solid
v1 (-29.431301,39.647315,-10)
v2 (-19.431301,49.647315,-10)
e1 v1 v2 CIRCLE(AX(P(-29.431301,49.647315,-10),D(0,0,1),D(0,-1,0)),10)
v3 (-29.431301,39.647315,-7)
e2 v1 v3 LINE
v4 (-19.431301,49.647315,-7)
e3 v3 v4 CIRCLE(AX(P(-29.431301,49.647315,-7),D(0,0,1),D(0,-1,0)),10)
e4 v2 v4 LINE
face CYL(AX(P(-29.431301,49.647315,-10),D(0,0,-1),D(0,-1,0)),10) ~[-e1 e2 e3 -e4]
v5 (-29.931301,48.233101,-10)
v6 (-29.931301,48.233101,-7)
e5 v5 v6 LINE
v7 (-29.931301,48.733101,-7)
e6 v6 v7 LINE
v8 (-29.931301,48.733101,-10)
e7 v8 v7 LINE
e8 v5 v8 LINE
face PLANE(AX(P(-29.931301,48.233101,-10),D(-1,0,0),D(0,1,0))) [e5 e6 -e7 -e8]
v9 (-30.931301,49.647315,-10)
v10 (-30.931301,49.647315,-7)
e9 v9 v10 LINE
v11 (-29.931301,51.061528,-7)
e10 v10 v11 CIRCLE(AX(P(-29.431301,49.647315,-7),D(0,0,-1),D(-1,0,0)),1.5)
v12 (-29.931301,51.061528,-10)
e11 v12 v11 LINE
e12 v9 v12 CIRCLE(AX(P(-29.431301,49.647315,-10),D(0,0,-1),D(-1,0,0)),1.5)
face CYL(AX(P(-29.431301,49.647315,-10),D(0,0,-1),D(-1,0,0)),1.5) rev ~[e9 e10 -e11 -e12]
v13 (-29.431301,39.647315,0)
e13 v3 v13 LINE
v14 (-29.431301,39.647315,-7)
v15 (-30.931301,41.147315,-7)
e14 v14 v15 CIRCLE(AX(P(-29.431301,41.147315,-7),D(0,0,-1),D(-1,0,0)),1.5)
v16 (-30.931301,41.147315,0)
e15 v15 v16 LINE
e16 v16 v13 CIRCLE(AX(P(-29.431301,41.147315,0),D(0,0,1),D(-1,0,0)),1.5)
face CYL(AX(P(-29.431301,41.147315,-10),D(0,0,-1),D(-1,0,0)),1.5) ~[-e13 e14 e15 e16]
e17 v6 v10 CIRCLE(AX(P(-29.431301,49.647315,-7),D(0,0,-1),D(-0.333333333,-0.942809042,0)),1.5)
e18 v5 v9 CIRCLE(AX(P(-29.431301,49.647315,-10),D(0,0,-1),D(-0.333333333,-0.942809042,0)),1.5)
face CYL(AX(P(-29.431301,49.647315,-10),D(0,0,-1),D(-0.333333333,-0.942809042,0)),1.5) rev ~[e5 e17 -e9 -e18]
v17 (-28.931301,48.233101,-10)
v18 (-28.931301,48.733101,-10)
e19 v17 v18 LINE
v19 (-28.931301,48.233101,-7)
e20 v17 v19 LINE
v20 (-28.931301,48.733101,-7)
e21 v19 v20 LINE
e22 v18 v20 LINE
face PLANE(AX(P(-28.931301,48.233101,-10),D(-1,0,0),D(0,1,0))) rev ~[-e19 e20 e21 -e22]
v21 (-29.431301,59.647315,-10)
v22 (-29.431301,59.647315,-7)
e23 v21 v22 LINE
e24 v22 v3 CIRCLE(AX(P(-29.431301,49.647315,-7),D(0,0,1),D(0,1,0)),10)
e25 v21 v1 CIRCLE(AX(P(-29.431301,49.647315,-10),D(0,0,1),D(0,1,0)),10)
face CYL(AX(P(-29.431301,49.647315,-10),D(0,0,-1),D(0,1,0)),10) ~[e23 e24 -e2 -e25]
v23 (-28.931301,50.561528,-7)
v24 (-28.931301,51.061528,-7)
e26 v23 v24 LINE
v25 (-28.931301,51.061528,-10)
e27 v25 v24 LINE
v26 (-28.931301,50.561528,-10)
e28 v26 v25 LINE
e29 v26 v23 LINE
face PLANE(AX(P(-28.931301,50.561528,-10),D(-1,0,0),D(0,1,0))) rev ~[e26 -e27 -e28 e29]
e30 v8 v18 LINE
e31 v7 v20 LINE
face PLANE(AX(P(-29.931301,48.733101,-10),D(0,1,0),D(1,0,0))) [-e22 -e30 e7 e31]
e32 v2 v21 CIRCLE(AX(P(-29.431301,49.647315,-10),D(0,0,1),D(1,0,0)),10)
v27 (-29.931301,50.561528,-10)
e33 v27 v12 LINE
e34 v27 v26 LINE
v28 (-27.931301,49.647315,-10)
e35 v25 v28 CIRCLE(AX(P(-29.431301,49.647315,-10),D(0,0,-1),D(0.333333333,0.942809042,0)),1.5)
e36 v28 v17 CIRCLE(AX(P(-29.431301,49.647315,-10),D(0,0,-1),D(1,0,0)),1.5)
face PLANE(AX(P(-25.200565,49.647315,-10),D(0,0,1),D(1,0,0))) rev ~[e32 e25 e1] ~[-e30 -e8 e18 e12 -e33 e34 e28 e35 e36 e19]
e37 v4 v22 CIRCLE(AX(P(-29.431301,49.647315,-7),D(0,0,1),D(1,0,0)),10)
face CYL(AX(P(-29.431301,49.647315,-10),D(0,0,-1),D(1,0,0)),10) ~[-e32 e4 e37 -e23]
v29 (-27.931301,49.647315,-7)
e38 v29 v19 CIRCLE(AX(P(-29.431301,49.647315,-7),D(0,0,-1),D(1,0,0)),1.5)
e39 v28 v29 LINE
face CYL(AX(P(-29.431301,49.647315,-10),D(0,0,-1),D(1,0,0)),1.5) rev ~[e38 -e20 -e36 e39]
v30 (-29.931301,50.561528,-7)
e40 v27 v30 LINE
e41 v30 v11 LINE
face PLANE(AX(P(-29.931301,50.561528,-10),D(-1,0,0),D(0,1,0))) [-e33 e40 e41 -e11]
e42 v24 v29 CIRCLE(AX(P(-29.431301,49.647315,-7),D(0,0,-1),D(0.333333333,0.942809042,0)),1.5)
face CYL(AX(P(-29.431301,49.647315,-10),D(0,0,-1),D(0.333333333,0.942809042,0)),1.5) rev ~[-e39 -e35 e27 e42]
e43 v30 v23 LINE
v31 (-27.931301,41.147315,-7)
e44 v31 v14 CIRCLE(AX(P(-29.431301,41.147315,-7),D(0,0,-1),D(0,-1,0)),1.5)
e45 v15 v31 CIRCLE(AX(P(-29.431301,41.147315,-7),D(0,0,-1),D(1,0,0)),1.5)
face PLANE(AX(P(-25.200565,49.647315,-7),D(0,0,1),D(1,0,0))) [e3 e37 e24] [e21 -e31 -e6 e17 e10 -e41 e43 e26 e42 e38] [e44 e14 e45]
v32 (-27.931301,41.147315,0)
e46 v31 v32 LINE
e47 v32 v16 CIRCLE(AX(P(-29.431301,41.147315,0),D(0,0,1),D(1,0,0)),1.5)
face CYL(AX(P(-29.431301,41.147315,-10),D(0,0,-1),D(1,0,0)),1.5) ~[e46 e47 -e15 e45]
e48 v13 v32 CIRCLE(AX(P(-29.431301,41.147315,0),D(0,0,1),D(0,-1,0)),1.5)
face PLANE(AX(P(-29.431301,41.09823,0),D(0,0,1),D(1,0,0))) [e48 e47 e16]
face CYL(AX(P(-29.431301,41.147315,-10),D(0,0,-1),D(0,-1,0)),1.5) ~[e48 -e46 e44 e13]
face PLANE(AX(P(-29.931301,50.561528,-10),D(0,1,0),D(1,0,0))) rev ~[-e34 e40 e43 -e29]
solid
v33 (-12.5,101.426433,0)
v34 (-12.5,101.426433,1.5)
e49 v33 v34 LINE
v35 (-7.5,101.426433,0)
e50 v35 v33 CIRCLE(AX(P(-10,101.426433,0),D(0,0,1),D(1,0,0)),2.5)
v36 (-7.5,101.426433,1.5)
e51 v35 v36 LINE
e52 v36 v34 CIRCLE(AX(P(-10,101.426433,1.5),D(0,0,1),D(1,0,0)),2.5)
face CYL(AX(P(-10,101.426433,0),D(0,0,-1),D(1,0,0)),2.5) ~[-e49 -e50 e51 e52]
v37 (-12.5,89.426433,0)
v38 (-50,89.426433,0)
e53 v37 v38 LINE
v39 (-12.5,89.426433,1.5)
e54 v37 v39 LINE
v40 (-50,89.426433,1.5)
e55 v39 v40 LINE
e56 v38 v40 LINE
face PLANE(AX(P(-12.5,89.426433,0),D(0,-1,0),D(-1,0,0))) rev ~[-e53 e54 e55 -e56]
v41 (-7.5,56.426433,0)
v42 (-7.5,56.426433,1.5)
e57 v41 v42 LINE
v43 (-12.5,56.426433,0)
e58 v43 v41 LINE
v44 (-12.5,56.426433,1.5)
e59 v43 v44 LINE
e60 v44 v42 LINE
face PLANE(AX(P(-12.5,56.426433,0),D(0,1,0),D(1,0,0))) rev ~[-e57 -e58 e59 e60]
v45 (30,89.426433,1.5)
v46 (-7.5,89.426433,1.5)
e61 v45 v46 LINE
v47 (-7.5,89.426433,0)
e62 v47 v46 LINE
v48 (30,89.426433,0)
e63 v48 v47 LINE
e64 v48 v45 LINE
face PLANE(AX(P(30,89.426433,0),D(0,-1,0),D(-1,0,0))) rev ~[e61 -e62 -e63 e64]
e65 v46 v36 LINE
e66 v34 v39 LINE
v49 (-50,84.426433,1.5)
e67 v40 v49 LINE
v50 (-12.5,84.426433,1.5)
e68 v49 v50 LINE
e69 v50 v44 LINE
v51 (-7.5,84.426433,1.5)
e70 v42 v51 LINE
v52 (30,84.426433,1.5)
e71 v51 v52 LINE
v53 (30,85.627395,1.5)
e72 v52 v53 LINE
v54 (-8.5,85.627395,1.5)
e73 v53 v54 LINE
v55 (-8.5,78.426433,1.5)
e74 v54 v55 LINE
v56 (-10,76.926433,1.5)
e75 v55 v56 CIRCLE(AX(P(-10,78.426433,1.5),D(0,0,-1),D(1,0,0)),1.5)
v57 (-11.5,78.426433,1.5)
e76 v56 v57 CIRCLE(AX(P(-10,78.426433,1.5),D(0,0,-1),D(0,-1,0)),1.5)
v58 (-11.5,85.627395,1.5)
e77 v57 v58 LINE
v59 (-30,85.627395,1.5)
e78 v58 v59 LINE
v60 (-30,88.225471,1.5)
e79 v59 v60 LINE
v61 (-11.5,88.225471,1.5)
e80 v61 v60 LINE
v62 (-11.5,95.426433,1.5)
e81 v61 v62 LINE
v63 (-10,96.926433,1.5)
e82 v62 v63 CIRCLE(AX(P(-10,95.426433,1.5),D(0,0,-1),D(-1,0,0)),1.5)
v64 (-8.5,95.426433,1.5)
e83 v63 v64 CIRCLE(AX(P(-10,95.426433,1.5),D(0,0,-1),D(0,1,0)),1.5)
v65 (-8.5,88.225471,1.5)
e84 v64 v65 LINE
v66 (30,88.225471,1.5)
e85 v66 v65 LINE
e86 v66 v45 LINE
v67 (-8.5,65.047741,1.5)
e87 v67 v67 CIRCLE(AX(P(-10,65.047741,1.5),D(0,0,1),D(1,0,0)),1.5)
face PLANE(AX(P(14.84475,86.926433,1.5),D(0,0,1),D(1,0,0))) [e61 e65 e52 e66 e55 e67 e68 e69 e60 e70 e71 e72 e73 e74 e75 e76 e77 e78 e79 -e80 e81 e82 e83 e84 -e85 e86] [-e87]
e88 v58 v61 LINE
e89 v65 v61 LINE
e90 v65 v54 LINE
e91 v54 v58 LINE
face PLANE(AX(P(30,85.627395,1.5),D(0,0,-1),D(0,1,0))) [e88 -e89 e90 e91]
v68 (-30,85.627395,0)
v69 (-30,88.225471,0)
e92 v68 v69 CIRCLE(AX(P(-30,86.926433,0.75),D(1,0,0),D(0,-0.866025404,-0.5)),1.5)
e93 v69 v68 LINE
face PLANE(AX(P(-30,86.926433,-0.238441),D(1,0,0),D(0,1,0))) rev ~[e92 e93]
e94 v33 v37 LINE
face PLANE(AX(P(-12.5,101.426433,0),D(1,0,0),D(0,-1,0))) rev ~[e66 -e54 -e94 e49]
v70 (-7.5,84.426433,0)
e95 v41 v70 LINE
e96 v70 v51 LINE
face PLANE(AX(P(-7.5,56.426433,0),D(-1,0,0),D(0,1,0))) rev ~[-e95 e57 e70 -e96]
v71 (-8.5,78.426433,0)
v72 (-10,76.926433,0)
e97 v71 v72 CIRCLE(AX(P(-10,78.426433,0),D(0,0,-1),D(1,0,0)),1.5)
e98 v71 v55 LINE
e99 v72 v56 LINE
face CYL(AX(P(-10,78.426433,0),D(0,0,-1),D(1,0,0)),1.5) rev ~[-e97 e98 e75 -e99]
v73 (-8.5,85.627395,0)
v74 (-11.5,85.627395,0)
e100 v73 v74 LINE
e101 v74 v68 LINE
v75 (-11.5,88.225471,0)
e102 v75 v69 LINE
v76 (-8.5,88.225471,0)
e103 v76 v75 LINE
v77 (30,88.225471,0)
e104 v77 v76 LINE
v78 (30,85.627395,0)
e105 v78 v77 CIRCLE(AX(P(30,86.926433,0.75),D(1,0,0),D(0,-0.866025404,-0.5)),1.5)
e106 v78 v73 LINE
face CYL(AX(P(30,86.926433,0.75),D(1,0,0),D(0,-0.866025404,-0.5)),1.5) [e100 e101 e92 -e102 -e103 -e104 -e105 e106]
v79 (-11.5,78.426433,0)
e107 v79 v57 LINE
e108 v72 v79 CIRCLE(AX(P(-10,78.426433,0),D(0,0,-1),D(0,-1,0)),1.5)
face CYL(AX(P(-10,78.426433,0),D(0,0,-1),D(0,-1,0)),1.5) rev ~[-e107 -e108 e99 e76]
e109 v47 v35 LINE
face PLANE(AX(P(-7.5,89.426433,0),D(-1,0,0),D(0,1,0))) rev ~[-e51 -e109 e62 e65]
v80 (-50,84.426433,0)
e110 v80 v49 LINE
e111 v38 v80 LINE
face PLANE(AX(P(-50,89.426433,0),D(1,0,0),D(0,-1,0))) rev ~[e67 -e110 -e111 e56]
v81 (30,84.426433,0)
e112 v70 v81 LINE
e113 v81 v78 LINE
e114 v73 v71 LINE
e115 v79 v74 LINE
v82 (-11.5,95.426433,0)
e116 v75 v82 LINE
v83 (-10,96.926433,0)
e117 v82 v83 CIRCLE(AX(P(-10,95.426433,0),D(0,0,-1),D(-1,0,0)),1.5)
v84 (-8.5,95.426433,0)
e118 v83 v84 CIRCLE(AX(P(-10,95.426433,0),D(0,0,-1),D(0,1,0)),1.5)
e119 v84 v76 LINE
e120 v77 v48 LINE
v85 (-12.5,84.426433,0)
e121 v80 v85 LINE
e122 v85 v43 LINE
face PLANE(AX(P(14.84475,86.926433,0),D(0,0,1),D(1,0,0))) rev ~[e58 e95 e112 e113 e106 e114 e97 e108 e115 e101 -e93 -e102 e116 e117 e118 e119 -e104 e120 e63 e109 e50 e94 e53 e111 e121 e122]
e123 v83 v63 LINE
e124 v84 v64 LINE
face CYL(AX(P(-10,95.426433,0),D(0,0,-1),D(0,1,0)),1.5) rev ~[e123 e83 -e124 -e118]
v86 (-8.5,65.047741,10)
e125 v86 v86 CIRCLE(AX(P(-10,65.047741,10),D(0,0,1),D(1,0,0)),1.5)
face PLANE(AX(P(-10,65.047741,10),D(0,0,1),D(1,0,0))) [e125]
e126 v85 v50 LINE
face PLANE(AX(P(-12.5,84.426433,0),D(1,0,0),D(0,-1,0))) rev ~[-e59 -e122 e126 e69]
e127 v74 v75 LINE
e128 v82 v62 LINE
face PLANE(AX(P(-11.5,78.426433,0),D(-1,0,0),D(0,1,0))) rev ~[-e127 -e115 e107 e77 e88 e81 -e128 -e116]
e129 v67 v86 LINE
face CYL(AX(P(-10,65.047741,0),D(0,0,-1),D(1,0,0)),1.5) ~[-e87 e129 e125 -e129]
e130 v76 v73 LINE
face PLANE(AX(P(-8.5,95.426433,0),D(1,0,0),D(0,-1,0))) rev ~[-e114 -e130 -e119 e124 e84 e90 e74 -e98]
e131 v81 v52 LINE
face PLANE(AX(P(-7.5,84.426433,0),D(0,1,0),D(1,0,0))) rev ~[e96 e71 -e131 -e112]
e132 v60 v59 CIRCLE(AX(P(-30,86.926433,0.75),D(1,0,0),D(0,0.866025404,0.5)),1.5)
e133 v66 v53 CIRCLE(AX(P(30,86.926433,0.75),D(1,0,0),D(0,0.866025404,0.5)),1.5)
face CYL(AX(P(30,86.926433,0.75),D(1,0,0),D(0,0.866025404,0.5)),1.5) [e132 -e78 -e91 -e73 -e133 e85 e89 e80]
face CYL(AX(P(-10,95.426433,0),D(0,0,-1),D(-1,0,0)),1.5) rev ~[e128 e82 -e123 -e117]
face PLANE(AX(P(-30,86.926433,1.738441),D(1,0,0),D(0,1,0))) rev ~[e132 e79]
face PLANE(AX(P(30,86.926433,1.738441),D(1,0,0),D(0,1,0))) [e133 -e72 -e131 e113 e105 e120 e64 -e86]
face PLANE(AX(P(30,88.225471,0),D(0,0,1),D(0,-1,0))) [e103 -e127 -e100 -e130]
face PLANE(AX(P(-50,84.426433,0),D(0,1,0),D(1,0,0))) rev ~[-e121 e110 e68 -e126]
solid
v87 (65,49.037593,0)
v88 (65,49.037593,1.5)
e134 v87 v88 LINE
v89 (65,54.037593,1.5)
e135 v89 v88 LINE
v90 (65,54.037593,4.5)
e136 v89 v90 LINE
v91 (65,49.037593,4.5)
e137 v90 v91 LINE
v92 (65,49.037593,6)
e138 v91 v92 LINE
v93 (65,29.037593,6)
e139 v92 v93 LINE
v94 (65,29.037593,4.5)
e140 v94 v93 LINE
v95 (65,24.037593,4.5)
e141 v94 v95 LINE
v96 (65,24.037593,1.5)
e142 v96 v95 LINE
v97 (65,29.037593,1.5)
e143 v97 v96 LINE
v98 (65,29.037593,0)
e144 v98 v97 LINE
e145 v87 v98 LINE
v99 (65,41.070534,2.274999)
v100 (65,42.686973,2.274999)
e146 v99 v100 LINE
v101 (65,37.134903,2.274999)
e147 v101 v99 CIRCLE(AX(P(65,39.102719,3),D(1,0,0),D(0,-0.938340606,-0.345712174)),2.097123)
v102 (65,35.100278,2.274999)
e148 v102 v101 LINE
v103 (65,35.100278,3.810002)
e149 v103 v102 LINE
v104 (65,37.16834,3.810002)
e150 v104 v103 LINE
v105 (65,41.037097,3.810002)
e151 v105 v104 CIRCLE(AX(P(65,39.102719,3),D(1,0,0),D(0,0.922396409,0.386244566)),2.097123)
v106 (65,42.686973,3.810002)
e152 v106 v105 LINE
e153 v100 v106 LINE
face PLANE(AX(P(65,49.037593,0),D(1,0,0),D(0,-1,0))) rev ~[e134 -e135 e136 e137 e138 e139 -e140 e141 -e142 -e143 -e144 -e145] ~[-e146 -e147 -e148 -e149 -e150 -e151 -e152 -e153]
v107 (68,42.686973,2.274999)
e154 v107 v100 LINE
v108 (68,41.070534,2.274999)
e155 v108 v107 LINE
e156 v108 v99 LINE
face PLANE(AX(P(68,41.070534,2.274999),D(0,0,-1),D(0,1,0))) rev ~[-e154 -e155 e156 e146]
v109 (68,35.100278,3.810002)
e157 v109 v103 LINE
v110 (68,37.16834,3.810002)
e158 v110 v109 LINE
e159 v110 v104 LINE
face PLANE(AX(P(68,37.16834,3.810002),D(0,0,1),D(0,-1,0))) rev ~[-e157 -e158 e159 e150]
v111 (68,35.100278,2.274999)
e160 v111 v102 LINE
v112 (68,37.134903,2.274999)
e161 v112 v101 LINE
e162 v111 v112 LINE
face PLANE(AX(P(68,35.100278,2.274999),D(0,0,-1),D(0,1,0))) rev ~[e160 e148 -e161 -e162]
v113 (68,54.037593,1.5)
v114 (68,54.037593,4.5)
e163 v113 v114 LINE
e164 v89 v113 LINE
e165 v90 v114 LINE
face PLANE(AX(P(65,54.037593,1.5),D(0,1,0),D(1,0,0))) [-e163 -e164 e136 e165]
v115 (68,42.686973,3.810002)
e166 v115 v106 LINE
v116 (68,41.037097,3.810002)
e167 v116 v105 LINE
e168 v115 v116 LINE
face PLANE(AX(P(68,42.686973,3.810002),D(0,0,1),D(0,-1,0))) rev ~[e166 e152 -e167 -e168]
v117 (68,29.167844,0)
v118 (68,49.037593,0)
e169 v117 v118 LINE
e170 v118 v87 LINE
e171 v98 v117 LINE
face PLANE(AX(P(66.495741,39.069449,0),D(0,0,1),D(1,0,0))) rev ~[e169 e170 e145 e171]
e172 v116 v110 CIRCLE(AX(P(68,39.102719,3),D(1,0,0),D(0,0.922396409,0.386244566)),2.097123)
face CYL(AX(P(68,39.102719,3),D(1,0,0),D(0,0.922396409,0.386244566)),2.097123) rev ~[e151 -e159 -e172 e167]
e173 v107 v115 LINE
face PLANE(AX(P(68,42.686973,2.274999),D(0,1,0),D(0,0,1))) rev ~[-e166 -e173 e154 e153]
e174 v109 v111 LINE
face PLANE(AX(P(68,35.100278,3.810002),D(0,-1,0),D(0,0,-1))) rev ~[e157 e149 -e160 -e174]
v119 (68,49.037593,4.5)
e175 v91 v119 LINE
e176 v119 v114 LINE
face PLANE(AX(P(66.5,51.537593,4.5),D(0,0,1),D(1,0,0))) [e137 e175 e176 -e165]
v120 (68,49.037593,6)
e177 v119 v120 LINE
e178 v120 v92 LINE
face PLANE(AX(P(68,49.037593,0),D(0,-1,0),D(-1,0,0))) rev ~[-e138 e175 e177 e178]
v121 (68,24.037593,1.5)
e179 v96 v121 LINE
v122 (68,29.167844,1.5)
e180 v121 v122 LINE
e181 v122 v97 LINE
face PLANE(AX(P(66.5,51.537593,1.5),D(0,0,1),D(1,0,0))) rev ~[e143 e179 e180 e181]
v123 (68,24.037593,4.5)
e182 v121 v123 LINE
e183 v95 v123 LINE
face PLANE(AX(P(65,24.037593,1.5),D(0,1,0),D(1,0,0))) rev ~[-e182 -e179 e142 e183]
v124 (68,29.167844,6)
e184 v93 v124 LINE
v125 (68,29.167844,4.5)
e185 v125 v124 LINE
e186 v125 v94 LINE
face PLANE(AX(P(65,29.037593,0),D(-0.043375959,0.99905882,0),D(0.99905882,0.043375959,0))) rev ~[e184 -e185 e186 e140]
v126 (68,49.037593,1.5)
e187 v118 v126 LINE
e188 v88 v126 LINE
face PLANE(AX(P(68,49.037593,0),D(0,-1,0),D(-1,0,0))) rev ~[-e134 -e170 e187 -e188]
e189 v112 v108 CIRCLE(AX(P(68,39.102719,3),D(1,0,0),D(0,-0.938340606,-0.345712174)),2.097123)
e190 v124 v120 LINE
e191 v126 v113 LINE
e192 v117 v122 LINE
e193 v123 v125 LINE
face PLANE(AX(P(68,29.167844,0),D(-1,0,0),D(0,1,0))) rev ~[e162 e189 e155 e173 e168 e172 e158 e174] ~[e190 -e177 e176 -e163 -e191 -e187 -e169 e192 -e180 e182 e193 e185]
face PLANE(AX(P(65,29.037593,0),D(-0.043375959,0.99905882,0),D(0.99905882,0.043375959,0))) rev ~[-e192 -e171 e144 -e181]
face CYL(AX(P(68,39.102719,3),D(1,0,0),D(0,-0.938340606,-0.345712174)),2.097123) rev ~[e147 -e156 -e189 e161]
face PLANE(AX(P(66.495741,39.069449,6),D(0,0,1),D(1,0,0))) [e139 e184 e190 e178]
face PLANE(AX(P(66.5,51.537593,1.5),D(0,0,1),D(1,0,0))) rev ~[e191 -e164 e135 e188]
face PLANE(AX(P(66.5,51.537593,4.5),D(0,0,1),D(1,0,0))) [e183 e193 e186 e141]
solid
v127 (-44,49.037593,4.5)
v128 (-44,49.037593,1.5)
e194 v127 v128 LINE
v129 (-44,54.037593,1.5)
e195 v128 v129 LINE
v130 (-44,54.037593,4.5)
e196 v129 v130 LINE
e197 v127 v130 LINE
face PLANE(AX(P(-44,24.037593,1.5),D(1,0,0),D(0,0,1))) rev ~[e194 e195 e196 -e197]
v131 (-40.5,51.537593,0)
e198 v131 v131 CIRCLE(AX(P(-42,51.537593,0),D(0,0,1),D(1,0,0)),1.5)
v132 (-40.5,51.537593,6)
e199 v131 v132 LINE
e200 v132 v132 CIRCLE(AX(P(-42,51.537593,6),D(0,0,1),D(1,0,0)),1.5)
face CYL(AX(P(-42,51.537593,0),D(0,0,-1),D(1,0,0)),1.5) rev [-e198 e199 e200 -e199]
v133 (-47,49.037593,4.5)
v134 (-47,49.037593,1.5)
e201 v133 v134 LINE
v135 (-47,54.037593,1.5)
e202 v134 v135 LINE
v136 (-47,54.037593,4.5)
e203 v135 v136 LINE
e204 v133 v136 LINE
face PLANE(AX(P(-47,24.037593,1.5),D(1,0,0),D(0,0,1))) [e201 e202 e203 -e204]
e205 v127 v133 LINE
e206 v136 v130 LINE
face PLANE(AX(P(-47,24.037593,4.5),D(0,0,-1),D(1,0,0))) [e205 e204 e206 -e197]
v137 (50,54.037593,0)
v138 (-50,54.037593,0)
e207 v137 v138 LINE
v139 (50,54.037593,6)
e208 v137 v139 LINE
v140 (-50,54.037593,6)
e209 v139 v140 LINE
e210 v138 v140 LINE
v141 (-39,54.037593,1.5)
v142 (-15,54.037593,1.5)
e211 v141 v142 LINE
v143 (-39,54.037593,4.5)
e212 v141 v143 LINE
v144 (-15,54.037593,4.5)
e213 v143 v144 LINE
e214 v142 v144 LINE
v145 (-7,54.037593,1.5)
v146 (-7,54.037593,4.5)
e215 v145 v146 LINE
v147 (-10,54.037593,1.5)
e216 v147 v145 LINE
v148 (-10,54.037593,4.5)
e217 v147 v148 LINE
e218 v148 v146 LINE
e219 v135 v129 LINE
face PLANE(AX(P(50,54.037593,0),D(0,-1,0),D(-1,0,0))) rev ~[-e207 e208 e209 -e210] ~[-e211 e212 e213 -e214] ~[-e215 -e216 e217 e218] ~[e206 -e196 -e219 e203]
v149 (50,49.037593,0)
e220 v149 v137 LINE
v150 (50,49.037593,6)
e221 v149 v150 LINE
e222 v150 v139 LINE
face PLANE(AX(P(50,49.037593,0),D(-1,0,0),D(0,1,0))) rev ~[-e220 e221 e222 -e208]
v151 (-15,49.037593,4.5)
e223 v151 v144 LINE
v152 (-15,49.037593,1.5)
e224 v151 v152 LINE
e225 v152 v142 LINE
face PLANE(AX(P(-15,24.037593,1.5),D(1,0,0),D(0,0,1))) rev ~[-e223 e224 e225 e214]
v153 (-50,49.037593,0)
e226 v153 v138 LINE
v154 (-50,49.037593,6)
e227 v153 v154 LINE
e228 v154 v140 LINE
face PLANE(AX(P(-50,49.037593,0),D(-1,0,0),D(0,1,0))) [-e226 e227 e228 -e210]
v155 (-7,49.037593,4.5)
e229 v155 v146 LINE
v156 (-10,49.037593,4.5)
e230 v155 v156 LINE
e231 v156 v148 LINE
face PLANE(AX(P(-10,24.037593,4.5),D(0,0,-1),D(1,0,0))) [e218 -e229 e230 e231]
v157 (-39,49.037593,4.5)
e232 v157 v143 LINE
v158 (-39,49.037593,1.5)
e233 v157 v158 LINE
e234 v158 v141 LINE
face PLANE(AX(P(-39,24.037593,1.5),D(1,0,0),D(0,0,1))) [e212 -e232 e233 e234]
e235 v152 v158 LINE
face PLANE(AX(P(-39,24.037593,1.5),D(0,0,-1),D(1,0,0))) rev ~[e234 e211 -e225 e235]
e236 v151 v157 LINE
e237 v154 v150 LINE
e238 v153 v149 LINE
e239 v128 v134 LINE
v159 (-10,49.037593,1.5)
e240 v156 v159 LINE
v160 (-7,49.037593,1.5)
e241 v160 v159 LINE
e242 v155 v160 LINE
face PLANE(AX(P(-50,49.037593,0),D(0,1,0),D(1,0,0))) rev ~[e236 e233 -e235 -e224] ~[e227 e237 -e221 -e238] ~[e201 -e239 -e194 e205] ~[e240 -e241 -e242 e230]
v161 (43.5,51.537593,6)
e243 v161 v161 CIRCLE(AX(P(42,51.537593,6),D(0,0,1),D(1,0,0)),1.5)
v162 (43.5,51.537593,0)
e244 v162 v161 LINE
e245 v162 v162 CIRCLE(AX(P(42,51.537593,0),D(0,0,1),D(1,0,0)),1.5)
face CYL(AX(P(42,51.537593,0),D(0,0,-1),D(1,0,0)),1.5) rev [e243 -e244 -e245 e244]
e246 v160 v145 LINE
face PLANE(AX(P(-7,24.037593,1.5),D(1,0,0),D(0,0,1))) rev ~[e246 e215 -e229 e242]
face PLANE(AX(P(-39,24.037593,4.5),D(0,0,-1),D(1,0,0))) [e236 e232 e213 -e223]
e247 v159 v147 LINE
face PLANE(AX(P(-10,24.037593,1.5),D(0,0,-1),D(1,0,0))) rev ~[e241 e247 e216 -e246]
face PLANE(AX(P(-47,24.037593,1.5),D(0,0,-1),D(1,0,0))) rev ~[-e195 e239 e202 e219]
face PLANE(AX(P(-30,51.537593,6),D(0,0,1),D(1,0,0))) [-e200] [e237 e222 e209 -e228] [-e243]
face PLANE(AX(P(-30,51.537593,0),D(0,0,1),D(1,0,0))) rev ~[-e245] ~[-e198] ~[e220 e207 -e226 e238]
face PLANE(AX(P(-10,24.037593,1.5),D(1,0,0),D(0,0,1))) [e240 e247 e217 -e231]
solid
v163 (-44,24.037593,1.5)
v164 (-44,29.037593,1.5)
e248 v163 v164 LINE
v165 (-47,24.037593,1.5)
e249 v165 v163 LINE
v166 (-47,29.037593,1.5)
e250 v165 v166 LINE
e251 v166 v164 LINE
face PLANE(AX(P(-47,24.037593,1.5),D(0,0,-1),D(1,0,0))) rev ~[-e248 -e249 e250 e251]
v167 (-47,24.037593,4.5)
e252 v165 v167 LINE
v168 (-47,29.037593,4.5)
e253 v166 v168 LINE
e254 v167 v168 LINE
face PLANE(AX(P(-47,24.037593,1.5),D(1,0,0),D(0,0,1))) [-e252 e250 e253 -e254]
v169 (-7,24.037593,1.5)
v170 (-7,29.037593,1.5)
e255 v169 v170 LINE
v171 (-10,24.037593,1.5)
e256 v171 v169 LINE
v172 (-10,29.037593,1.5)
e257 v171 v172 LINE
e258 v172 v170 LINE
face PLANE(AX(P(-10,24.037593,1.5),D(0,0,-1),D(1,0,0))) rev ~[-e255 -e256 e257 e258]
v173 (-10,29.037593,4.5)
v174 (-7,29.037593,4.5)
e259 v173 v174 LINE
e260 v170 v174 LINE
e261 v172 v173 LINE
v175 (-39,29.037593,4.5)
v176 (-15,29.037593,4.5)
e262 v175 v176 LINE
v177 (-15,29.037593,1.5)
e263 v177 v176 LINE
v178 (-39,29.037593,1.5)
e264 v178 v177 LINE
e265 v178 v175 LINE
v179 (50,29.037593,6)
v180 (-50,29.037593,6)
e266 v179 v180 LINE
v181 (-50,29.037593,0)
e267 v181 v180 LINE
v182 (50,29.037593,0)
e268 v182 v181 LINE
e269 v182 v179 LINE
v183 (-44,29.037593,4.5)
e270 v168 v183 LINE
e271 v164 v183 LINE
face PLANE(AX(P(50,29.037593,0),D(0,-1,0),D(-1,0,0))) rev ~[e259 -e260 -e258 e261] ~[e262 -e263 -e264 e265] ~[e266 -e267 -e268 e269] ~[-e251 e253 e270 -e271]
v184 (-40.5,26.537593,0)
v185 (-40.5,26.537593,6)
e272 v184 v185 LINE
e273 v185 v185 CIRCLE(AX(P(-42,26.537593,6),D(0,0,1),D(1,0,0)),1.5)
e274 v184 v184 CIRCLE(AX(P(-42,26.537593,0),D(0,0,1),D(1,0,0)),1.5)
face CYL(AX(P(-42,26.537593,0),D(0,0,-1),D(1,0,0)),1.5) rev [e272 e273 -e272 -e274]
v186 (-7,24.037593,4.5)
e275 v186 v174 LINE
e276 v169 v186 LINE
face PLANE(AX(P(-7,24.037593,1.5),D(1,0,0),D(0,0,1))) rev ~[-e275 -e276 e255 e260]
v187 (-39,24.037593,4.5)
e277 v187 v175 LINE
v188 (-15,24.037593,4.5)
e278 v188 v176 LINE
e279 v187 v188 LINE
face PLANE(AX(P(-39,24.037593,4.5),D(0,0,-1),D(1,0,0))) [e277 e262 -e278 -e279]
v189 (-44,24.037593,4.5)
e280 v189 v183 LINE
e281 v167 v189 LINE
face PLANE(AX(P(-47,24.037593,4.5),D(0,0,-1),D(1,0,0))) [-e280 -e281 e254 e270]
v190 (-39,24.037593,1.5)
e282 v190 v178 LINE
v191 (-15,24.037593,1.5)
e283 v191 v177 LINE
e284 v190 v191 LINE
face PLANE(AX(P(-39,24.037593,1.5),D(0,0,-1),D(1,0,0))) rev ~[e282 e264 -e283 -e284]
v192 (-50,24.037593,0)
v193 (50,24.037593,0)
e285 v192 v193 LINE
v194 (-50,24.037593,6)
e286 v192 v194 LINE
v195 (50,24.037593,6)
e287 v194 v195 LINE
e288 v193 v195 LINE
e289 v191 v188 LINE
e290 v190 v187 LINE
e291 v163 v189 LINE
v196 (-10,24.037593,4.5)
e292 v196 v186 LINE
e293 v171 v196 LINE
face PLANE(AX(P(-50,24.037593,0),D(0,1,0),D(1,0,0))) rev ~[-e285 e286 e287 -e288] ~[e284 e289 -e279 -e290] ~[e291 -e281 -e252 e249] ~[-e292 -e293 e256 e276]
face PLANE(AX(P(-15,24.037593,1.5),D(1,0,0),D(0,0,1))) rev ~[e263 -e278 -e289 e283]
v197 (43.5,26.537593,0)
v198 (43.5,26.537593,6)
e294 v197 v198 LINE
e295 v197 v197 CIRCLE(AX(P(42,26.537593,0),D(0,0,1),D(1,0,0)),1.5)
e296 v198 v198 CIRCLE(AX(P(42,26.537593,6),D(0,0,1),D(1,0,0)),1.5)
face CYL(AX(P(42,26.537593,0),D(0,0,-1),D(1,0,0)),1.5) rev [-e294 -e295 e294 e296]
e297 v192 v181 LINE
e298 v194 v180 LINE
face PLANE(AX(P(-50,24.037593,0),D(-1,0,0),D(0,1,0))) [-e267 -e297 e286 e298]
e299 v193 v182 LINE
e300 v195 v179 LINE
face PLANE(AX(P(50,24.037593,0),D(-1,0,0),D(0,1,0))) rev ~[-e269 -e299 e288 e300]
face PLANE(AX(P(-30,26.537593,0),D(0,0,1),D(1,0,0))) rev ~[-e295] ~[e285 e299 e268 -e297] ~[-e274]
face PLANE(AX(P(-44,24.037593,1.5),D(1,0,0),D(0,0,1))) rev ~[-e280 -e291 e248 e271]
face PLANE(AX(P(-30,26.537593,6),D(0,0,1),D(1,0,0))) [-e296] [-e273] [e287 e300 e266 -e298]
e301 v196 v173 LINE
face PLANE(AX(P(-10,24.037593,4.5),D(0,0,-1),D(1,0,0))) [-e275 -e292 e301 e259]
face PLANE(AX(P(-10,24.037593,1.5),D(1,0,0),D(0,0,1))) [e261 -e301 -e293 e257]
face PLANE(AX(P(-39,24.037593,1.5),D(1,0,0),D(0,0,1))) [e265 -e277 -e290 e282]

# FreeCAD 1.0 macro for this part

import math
import FreeCAD as App
import Part
import Sketcher


def add_polygon(sketch, points):
    """Adds a closed chain of lines whose ends are joined by coincident constraints."""
    first, n = sketch.GeometryCount, len(points)
    for a, b in zip(points, points[1:] + points[:1]):
        sketch.addGeometry(Part.LineSegment(App.Vector(*a, 0), App.Vector(*b, 0)), False)
    for i in range(n):
        sketch.addConstraint(Sketcher.Constraint("Coincident", first + i, 2, first + (i + 1) % n, 1))

doc = App.newDocument("Part")
params = doc.addObject("Spreadsheet::Sheet", "Params")
for row, (alias, value) in enumerate([
    ("sketch1_diameter", "3 mm"),
    ("sketch1_width", "100 mm"),
    ("sketch1_height", "5 mm"),
    ("pad1_length", "6 mm"),
    ("sketch2_diameter", "3 mm"),
    ("sketch2_width", "100 mm"),
    ("sketch2_height", "5 mm"),
    ("pad2_length", "6 mm"),
    ("sketch3_width", "3 mm"),
    ("sketch3_height", "30 mm"),
    ("pad3_length", "3 mm"),
    ("sketch4_width", "3 mm"),
    ("sketch4_height", "20 mm"),
    ("pad4_length", "6 mm"),
    ("sketch6_width", "3 mm"),
    ("sketch6_width2", "24 mm"),
    ("pad5_length", "30.001 mm"),
    ("sketch7_diameter", "3 mm"),
    ("sketch7_radius", "2.5 mm"),
    ("sketch7_height", "12 mm"),
    ("sketch7_height2", "28 mm"),
    ("sketch7_height3", "17 mm"),
    ("pad6_length", "1.5 mm"),
    ("sketch8_diameter", "3 mm"),
    ("pad7_length", "10 mm"),
    ("sketch9_radius", "1.5 mm"),
    ("pad8_length", "60 mm"),
    ("sketch10_radius", "10 mm"),
    ("sketch10_radius2", "1.5 mm"),
    ("sketch10_width", "1 mm"),
    ("sketch10_height", "0.5 mm"),
    ("pad9_length", "3 mm"),
    ("sketch11_radius", "1.5 mm"),
    ("pad10_length", "10 mm"),
], start=1):
    params.set(f"A{row}", alias)
    params.set(f"B{row}", "=" + value)
    params.setAlias(f"B{row}", alias)

body = doc.addObject("PartDesign::Body", "Body")

# Sketch on XY plane
sketch1 = doc.addObject("Sketcher::SketchObject", "Sketch")
body.addObject(sketch1)
sketch1.AttachmentSupport = (doc.XY_Plane, [""])
sketch1.MapMode = "FlatFace"
add_polygon(sketch1, [(-50, 54), (-50, 49), (50, 49), (50, 54)])  # lines 0-3
sketch1.addGeometry(Part.Circle(App.Vector(-42, 51.5, 0), App.Vector(0, 0, 1), 1.5), False)  # 4
sketch1.addGeometry(Part.Circle(App.Vector(42, 51.5, 0), App.Vector(0, 0, 1), 1.5), False)  # 5
sketch1.addConstraint([
    Sketcher.Constraint("Vertical", 0),
    Sketcher.Constraint("Horizontal", 1),
    Sketcher.Constraint("Vertical", 2),
    Sketcher.Constraint("Horizontal", 3),
    Sketcher.Constraint("Equal", 4, 5),
    Sketcher.Constraint("Symmetric", 4, 3, 5, 3, -2),
    Sketcher.Constraint("Diameter", 4, 3.0),
    Sketcher.Constraint("DistanceX", 1, 1, 1, 2, 100.0),
    Sketcher.Constraint("DistanceY", 0, 2, 0, 1, 5.0),
    Sketcher.Constraint("DistanceX", 4, 3, -1, 1, 42.0),
    Sketcher.Constraint("DistanceX", 0, 2, -1, 1, 50.0),
    Sketcher.Constraint("DistanceY", 0, 2, 4, 3, 2.5),
    Sketcher.Constraint("DistanceY", -1, 1, 4, 3, 51.537593),
])
sketch1.setExpression("Constraints[10]", "Params.sketch1_diameter")
sketch1.setExpression("Constraints[11]", "Params.sketch1_width")
sketch1.setExpression("Constraints[12]", "Params.sketch1_height")
pad1 = doc.addObject("PartDesign::Pad", "Pad")
body.addObject(pad1)
pad1.Profile = sketch1
pad1.setExpression("Length", "Params.pad1_length")
body2 = doc.addObject("PartDesign::Body", "Body001")

# Sketch on XY plane
sketch2 = doc.addObject("Sketcher::SketchObject", "Sketch001")
body2.addObject(sketch2)
sketch2.AttachmentSupport = (doc.getObject("XY_Plane001"), [""])
sketch2.MapMode = "FlatFace"
add_polygon(sketch2, [(-50, 29), (-50, 24), (50, 24), (50, 29)])  # lines 0-3
sketch2.addGeometry(Part.Circle(App.Vector(-42, 26.5, 0), App.Vector(0, 0, 1), 1.5), False)  # 4
sketch2.addGeometry(Part.Circle(App.Vector(42, 26.5, 0), App.Vector(0, 0, 1), 1.5), False)  # 5
sketch2.addConstraint([
    Sketcher.Constraint("Vertical", 0),
    Sketcher.Constraint("Horizontal", 1),
    Sketcher.Constraint("Vertical", 2),
    Sketcher.Constraint("Horizontal", 3),
    Sketcher.Constraint("Equal", 4, 5),
    Sketcher.Constraint("Symmetric", 4, 3, 5, 3, -2),
    Sketcher.Constraint("Diameter", 4, 3.0),
    Sketcher.Constraint("DistanceX", 1, 1, 1, 2, 100.0),
    Sketcher.Constraint("DistanceY", 0, 2, 0, 1, 5.0),
    Sketcher.Constraint("DistanceX", 4, 3, -1, 1, 42.0),
    Sketcher.Constraint("DistanceX", 0, 2, -1, 1, 50.0),
    Sketcher.Constraint("DistanceY", 0, 2, 4, 3, 2.5),
    Sketcher.Constraint("DistanceY", -1, 1, 4, 3, 26.537593),
])
sketch2.setExpression("Constraints[10]", "Params.sketch2_diameter")
sketch2.setExpression("Constraints[11]", "Params.sketch2_width")
sketch2.setExpression("Constraints[12]", "Params.sketch2_height")
pad2 = doc.addObject("PartDesign::Pad", "Pad001")
body2.addObject(pad2)
pad2.Profile = sketch2
pad2.setExpression("Length", "Params.pad2_length")
body3 = doc.addObject("PartDesign::Body", "Body002")

# Sketch on XY plane
sketch3 = doc.addObject("Sketcher::SketchObject", "Sketch002")
body3.addObject(sketch3)
sketch3.AttachmentSupport = (doc.getObject("XY_Plane002"), [""])
sketch3.MapMode = "FlatFace"
sketch3.AttachmentOffset = App.Placement(App.Vector(0, 0, 1.5), App.Rotation())
add_polygon(sketch3, [(65, 54), (65, 24), (68, 24), (68, 54)])  # lines 0-3
sketch3.addConstraint([
    Sketcher.Constraint("Vertical", 0),
    Sketcher.Constraint("Horizontal", 1),
    Sketcher.Constraint("Vertical", 2),
    Sketcher.Constraint("Horizontal", 3),
    Sketcher.Constraint("DistanceX", 1, 1, 1, 2, 3.0),
    Sketcher.Constraint("DistanceY", 0, 2, 0, 1, 30.0),
    Sketcher.Constraint("DistanceX", -1, 1, 0, 2, 65.0),
    Sketcher.Constraint("DistanceY", -1, 1, 0, 2, 24.037593),
])
sketch3.setExpression("Constraints[8]", "Params.sketch3_width")
sketch3.setExpression("Constraints[9]", "Params.sketch3_height")
pad3 = doc.addObject("PartDesign::Pad", "Pad002")
body3.addObject(pad3)
pad3.Profile = sketch3
pad3.setExpression("Length", "Params.pad3_length")

# Sketch on XY plane
sketch4 = doc.addObject("Sketcher::SketchObject", "Sketch003")
body3.addObject(sketch4)
sketch4.AttachmentSupport = (doc.getObject("XY_Plane002"), [""])
sketch4.MapMode = "FlatFace"
add_polygon(sketch4, [(68, 49), (65, 49), (65, 29), (68, 29.2)])  # lines 0-3
sketch4.addConstraint([
    Sketcher.Constraint("Horizontal", 0),
    Sketcher.Constraint("Vertical", 1),
    Sketcher.Constraint("Vertical", 3),
    Sketcher.Constraint("DistanceX", 0, 2, 0, 1, 3.0),
    Sketcher.Constraint("DistanceY", 1, 2, 1, 1, 20.0),
    Sketcher.Constraint("DistanceX", -1, 1, 0, 2, 65.0),
    Sketcher.Constraint("DistanceY", 3, 1, 3, 2, 19.86975),
    Sketcher.Constraint("DistanceY", -1, 1, 0, 2, 49.037593),
])
sketch4.setExpression("Constraints[7]", "Params.sketch4_width")
sketch4.setExpression("Constraints[8]", "Params.sketch4_height")
pad4 = doc.addObject("PartDesign::Pad", "Pad003")
body3.addObject(pad4)
pad4.Profile = sketch4
pad4.setExpression("Length", "Params.pad4_length")

# Sketch on YZ plane
sketch5 = doc.addObject("Sketcher::SketchObject", "Sketch004")
body3.addObject(sketch5)
sketch5.AttachmentSupport = (doc.getObject("YZ_Plane002"), [""])
sketch5.MapMode = "FlatFace"
sketch5.AttachmentOffset = App.Placement(App.Vector(0, 0, 68), App.Rotation())
sketch5.addGeometry([
    Part.ArcOfCircle(Part.Circle(App.Vector(39.1, 3, 0), App.Vector(0, 0, 1), 2.1), math.radians(23), math.radians(157)),  # 0
    Part.LineSegment(App.Vector(37.2, 3.8, 0), App.Vector(35.1, 3.8, 0)),  # 1
    Part.LineSegment(App.Vector(35.1, 3.8, 0), App.Vector(35.1, 2.3, 0)),  # 2
    Part.LineSegment(App.Vector(35.1, 2.3, 0), App.Vector(37.1, 2.3, 0)),  # 3
    Part.ArcOfCircle(Part.Circle(App.Vector(39.1, 3, 0), App.Vector(0, 0, 1), 2.1), math.radians(-160), math.radians(-20)),  # 4
    Part.LineSegment(App.Vector(41.1, 2.3, 0), App.Vector(42.7, 2.3, 0)),  # 5
    Part.LineSegment(App.Vector(42.7, 2.3, 0), App.Vector(42.7, 3.8, 0)),  # 6
    Part.LineSegment(App.Vector(42.7, 3.8, 0), App.Vector(41, 3.8, 0)),  # 7
], False)
sketch5.addConstraint([
    Sketcher.Constraint("Coincident", 0, 2, 1, 1),
    Sketcher.Constraint("Coincident", 1, 2, 2, 1),
    Sketcher.Constraint("Coincident", 2, 2, 3, 1),
    Sketcher.Constraint("Coincident", 3, 2, 4, 1),
    Sketcher.Constraint("Coincident", 4, 2, 5, 1),
    Sketcher.Constraint("Coincident", 5, 2, 6, 1),
    Sketcher.Constraint("Coincident", 6, 2, 7, 1),
    Sketcher.Constraint("Coincident", 7, 2, 0, 1),
    Sketcher.Constraint("Horizontal", 1),
    Sketcher.Constraint("Vertical", 2),
    Sketcher.Constraint("Horizontal", 3),
    Sketcher.Constraint("Horizontal", 5),
    Sketcher.Constraint("Vertical", 6),
    Sketcher.Constraint("Horizontal", 7),
    Sketcher.Constraint("Coincident", 4, 3, 0, 3),
    Sketcher.Constraint("Equal", 0, 4),
    Sketcher.Constraint("Horizontal", 3, 2, 4, 2),
    Sketcher.Constraint("Horizontal", 1, 2, 6, 2),
    Sketcher.Constraint("DistanceY", -1, 1, 0, 3, 3.0),
    Sketcher.Constraint("DistanceY", -1, 1, 2, 2, 2.274999),
    Sketcher.Constraint("Radius", 0, 2.097123),
    Sketcher.Constraint("DistanceX", 5, 1, 5, 2, 1.616439),
    Sketcher.Constraint("DistanceX", 1, 2, 1, 1, 2.068063),
    Sketcher.Constraint("DistanceX", 3, 1, 3, 2, 2.034626),
    Sketcher.Constraint("DistanceX", -1, 1, 0, 3, 39.102719),
])
pocket1 = doc.addObject("PartDesign::Pocket", "Pocket")
body3.addObject(pocket1)
pocket1.Profile = sketch5
pocket1.Type = "ThroughAll"
body4 = doc.addObject("PartDesign::Body", "Body003")
body4.AllowCompound = True

# Sketch on XZ plane
sketch6 = doc.addObject("Sketcher::SketchObject", "Sketch005")
body4.addObject(sketch6)
sketch6.AttachmentSupport = (doc.getObject("XZ_Plane003"), [""])
sketch6.MapMode = "FlatFace"
sketch6.AttachmentOffset = App.Placement(App.Vector(0, 0, -24.037593), App.Rotation())
add_polygon(sketch6, [(-10, 4.5), (-10, 1.5), (-7, 1.5), (-7, 4.5)])  # lines 0-3
add_polygon(sketch6, [(-47, 4.5), (-47, 1.5), (-44, 1.5), (-44, 4.5)])  # lines 4-7
add_polygon(sketch6, [(-39, 4.5), (-39, 1.5), (-15, 1.5), (-15, 4.5)])  # lines 8-11
sketch6.addConstraint([
    Sketcher.Constraint("Vertical", 0),
    Sketcher.Constraint("Horizontal", 1),
    Sketcher.Constraint("Vertical", 2),
    Sketcher.Constraint("Horizontal", 3),
    Sketcher.Constraint("Vertical", 4),
    Sketcher.Constraint("Horizontal", 5),
    Sketcher.Constraint("Vertical", 6),
    Sketcher.Constraint("Horizontal", 7),
    Sketcher.Constraint("Vertical", 8),
    Sketcher.Constraint("Horizontal", 9),
    Sketcher.Constraint("Vertical", 10),
    Sketcher.Constraint("Horizontal", 11),
    Sketcher.Constraint("Horizontal", 1, 2, 4, 2),
    Sketcher.Constraint("Horizontal", 3, 2, 6, 2),
    Sketcher.Constraint("Horizontal", 5, 2, 8, 2),
    Sketcher.Constraint("Horizontal", 7, 2, 10, 2),
    Sketcher.Constraint("Equal", 3, 5),
    Sketcher.Constraint("Equal", 7, 0),
    Sketcher.Constraint("DistanceX", 1, 1, 1, 2, 3.0),
    Sketcher.Constraint("DistanceX", 9, 1, 9, 2, 24.0),
    Sketcher.Constraint("DistanceX", 0, 2, -1, 1, 10.0),
    Sketcher.Constraint("DistanceX", 4, 2, -1, 1, 47.0),
    Sketcher.Constraint("DistanceX", 8, 2, -1, 1, 39.0),
    Sketcher.Constraint("DistanceY", -1, 1, 0, 2, 1.5),
])
sketch6.setExpression("Constraints[30]", "Params.sketch6_width")
sketch6.setExpression("Constraints[31]", "Params.sketch6_width2")
pad5 = doc.addObject("PartDesign::Pad", "Pad004")
body4.addObject(pad5)
pad5.Profile = sketch6
pad5.setExpression("Length", "Params.pad5_length")
pad5.Reversed = True
doc.recompute()

body5 = doc.addObject("PartDesign::Body", "Body004")
body5.BaseFeature = body4
boolean = doc.addObject("PartDesign::Boolean", "Boolean")
body.addObject(boolean)
boolean.Type = "Cut"
boolean.addObjects([body5])
doc.recompute()

boolean2 = doc.addObject("PartDesign::Boolean", "Boolean001")
body2.addObject(boolean2)
boolean2.Type = "Cut"
boolean2.addObjects([body4])
body6 = doc.addObject("PartDesign::Body", "Body005")

# Sketch on XY plane
sketch7 = doc.addObject("Sketcher::SketchObject", "Sketch006")
body6.addObject(sketch7)
sketch7.AttachmentSupport = (doc.getObject("XY_Plane005"), [""])
sketch7.MapMode = "FlatFace"
sketch7.addGeometry([
    Part.LineSegment(App.Vector(30, 89.4, 0), App.Vector(-7.5, 89.4, 0)),  # 0
    Part.LineSegment(App.Vector(-7.5, 89.4, 0), App.Vector(-7.5, 101.4, 0)),  # 1
    Part.ArcOfCircle(Part.Circle(App.Vector(-10, 101.4, 0), App.Vector(0, 0, 1), 2.5), math.radians(0), math.radians(180)),  # 2
    Part.LineSegment(App.Vector(-12.5, 101.4, 0), App.Vector(-12.5, 89.4, 0)),  # 3
    Part.LineSegment(App.Vector(-12.5, 89.4, 0), App.Vector(-50, 89.4, 0)),  # 4
    Part.LineSegment(App.Vector(-50, 89.4, 0), App.Vector(-50, 84.4, 0)),  # 5
    Part.LineSegment(App.Vector(-50, 84.4, 0), App.Vector(-12.5, 84.4, 0)),  # 6
    Part.LineSegment(App.Vector(-12.5, 84.4, 0), App.Vector(-12.5, 56.4, 0)),  # 7
    Part.LineSegment(App.Vector(-12.5, 56.4, 0), App.Vector(-7.5, 56.4, 0)),  # 8
    Part.LineSegment(App.Vector(-7.5, 56.4, 0), App.Vector(-7.5, 84.4, 0)),  # 9
    Part.LineSegment(App.Vector(-7.5, 84.4, 0), App.Vector(30, 84.4, 0)),  # 10
    Part.LineSegment(App.Vector(30, 84.4, 0), App.Vector(30, 89.4, 0)),  # 11
    Part.ArcOfCircle(Part.Circle(App.Vector(-10, 95.4, 0), App.Vector(0, 0, 1), 1.5), math.radians(90), math.radians(180)),  # 12
    Part.ArcOfCircle(Part.Circle(App.Vector(-10, 95.4, 0), App.Vector(0, 0, 1), 1.5), math.radians(0), math.radians(90)),  # 13
    Part.LineSegment(App.Vector(-8.5, 95.4, 0), App.Vector(-8.5, 78.4, 0)),  # 14
    Part.ArcOfCircle(Part.Circle(App.Vector(-10, 78.4, 0), App.Vector(0, 0, 1), 1.5), math.radians(-90), math.radians(0)),  # 15
    Part.ArcOfCircle(Part.Circle(App.Vector(-10, 78.4, 0), App.Vector(0, 0, 1), 1.5), math.radians(180), math.radians(270)),  # 16
    Part.LineSegment(App.Vector(-11.5, 78.4, 0), App.Vector(-11.5, 95.4, 0)),  # 17
    Part.Circle(App.Vector(-10, 65, 0), App.Vector(0, 0, 1), 1.5),  # 18
], False)
sketch7.addConstraint([
    Sketcher.Constraint("Coincident", 0, 2, 1, 1),
    Sketcher.Constraint("Tangent", 1, 2, 2, 1),
    Sketcher.Constraint("Tangent", 2, 2, 3, 1),
    Sketcher.Constraint("Coincident", 3, 2, 4, 1),
    Sketcher.Constraint("Coincident", 4, 2, 5, 1),
    Sketcher.Constraint("Coincident", 5, 2, 6, 1),
    Sketcher.Constraint("Coincident", 6, 2, 7, 1),
    Sketcher.Constraint("Coincident", 7, 2, 8, 1),
    Sketcher.Constraint("Coincident", 8, 2, 9, 1),
    Sketcher.Constraint("Coincident", 9, 2, 10, 1),
    Sketcher.Constraint("Coincident", 10, 2, 11, 1),
    Sketcher.Constraint("Coincident", 11, 2, 0, 1),
    Sketcher.Constraint("Tangent", 12, 1, 13, 2),
    Sketcher.Constraint("Tangent", 13, 1, 14, 1),
    Sketcher.Constraint("Tangent", 14, 2, 15, 2),
    Sketcher.Constraint("Tangent", 15, 1, 16, 2),
    Sketcher.Constraint("Tangent", 16, 1, 17, 1),
    Sketcher.Constraint("Tangent", 17, 2, 12, 2),
    Sketcher.Constraint("Horizontal", 0),
    Sketcher.Constraint("Vertical", 1),
    Sketcher.Constraint("Vertical", 3),
    Sketcher.Constraint("Horizontal", 4),
    Sketcher.Constraint("Vertical", 5),
    Sketcher.Constraint("Horizontal", 6),
    Sketcher.Constraint("Vertical", 7),
    Sketcher.Constraint("Horizontal", 8),
    Sketcher.Constraint("Vertical", 9),
    Sketcher.Constraint("Horizontal", 10),
    Sketcher.Constraint("Vertical", 11),
    Sketcher.Constraint("Vertical", 14),
    Sketcher.Constraint("Vertical", 17),
    Sketcher.Constraint("Equal", 12, 13),
    Sketcher.Constraint("Equal", 13, 15),
    Sketcher.Constraint("Equal", 16, 18),
    Sketcher.Constraint("Horizontal", 0, 2, 3, 2),
    Sketcher.Constraint("Horizontal", 6, 2, 9, 2),
    Sketcher.Constraint("Vertical", 2, 3, 12, 3),
    Sketcher.Constraint("Vertical", 16, 3, 18, 3),
    Sketcher.Constraint("Vertical", 3, 2, 6, 2),
    Sketcher.Constraint("Vertical", 1, 2, 8, 2),
    Sketcher.Constraint("Vertical", 18, 3, 12, 1),
    Sketcher.Constraint("Vertical", 12, 1, 15, 1),
    Sketcher.Constraint("Equal", 0, 4),
    Sketcher.Constraint("Equal", 8, 5),
    Sketcher.Constraint("Diameter", 18, 3.0),
    Sketcher.Constraint("Radius", 2, 2.5),
    Sketcher.Constraint("DistanceY", 1, 1, 1, 2, 12.0),
    Sketcher.Constraint("DistanceY", 7, 2, 7, 1, 28.0),
    Sketcher.Constraint("DistanceY", 14, 2, 14, 1, 17.0),
    Sketcher.Constraint("DistanceX", 0, 2, 0, 1, 37.5),
    Sketcher.Constraint("DistanceX", 2, 3, -1, 1, 10.0),
    Sketcher.Constraint("DistanceY", 12, 3, 2, 3, 6.0),
    Sketcher.Constraint("DistanceY", -1, 1, 18, 3, 65.047741),
    Sketcher.Constraint("DistanceY", 18, 3, 15, 3, 13.378692),
])
sketch7.setExpression("Constraints[44]", "Params.sketch7_diameter")
sketch7.setExpression("Constraints[45]", "Params.sketch7_radius")
sketch7.setExpression("Constraints[46]", "Params.sketch7_height")
sketch7.setExpression("Constraints[47]", "Params.sketch7_height2")
sketch7.setExpression("Constraints[48]", "Params.sketch7_height3")
pad6 = doc.addObject("PartDesign::Pad", "Pad005")
body6.addObject(pad6)
pad6.Profile = sketch7
pad6.setExpression("Length", "Params.pad6_length")

# Sketch on XY plane
sketch8 = doc.addObject("Sketcher::SketchObject", "Sketch007")
body6.addObject(sketch8)
sketch8.AttachmentSupport = (doc.getObject("XY_Plane005"), [""])
sketch8.MapMode = "FlatFace"
sketch8.addGeometry(Part.Circle(App.Vector(-10, 65, 0), App.Vector(0, 0, 1), 1.5), False)
sketch8.addConstraint([
    Sketcher.Constraint("Diameter", 0, 3.0),
    Sketcher.Constraint("DistanceX", 0, 3, -1, 1, 10.0),
    Sketcher.Constraint("DistanceY", -1, 1, 0, 3, 65.047741),
])
sketch8.setExpression("Constraints[0]", "Params.sketch8_diameter")
pad7 = doc.addObject("PartDesign::Pad", "Pad006")
body6.addObject(pad7)
pad7.Profile = sketch8
pad7.setExpression("Length", "Params.pad7_length")

# Sketch on YZ plane
sketch9 = doc.addObject("Sketcher::SketchObject", "Sketch008")
body6.addObject(sketch9)
sketch9.AttachmentSupport = (doc.getObject("YZ_Plane005"), [""])
sketch9.MapMode = "FlatFace"
sketch9.AttachmentOffset = App.Placement(App.Vector(0, 0, 30), App.Rotation())
sketch9.addGeometry([
    Part.LineSegment(App.Vector(85.6, 1.5, 0), App.Vector(88.2, 1.5, 0)),
    Part.ArcOfCircle(Part.Circle(App.Vector(86.9, 0.8, 0), App.Vector(0, 0, 1), 1.5), math.radians(30), math.radians(150)),
    Part.LineSegment(App.Vector(88.2, 0, 0), App.Vector(85.6, 0, 0)),
    Part.ArcOfCircle(Part.Circle(App.Vector(86.9, 0.8, 0), App.Vector(0, 0, 1), 1.5), math.radians(-150), math.radians(-30)),
], False)
sketch9.addConstraint([
    Sketcher.Constraint("Coincident", 0, 1, 1, 2),
    Sketcher.Constraint("Coincident", 1, 1, 0, 2),
    Sketcher.Constraint("Coincident", 2, 1, 3, 2),
    Sketcher.Constraint("Coincident", 3, 1, 2, 2),
    Sketcher.Constraint("Horizontal", 0),
    Sketcher.Constraint("Horizontal", 2),
    Sketcher.Constraint("Coincident", 3, 3, 1, 3),
    Sketcher.Constraint("Equal", 1, 3),
    Sketcher.Constraint("PointOnObject", 2, 1, -1),
    Sketcher.Constraint("Vertical", 1, 1, 2, 1),
    Sketcher.Constraint("Radius", 1, 1.5),
    Sketcher.Constraint("DistanceY", -1, 1, 0, 1, 1.5),
    Sketcher.Constraint("DistanceX", -1, 1, 1, 1, 88.225471),
])
sketch9.setExpression("Constraints[10]", "Params.sketch9_radius")
pad8 = doc.addObject("PartDesign::Pad", "Pad007")
body6.addObject(pad8)
pad8.Profile = sketch9
pad8.setExpression("Length", "Params.pad8_length")
pad8.Reversed = True
body7 = doc.addObject("PartDesign::Body", "Body006")

# Sketch on XY plane
sketch10 = doc.addObject("Sketcher::SketchObject", "Sketch009")
body7.addObject(sketch10)
sketch10.AttachmentSupport = (doc.getObject("XY_Plane006"), [""])
sketch10.MapMode = "FlatFace"
sketch10.AttachmentOffset = App.Placement(App.Vector(0, 0, -10), App.Rotation())
sketch10.addGeometry([
    Part.ArcOfCircle(Part.Circle(App.Vector(-29.4, 49.6, 0), App.Vector(0, 0, 1), 10), math.radians(0), math.radians(90)),  # 0
    Part.ArcOfCircle(Part.Circle(App.Vector(-29.4, 49.6, 0), App.Vector(0, 0, 1), 10), math.radians(90), math.radians(270)),  # 1
    Part.ArcOfCircle(Part.Circle(App.Vector(-29.4, 49.6, 0), App.Vector(0, 0, 1), 10), math.radians(-90), math.radians(0)),  # 2
    Part.ArcOfCircle(Part.Circle(App.Vector(-29.4, 49.6, 0), App.Vector(0, 0, 1), 1.5), math.radians(180), math.radians(251)),  # 3
    Part.ArcOfCircle(Part.Circle(App.Vector(-29.4, 49.6, 0), App.Vector(0, 0, 1), 1.5), math.radians(109), math.radians(180)),  # 4
    Part.LineSegment(App.Vector(-29.9, 51.1, 0), App.Vector(-29.9, 50.6, 0)),  # 5
    Part.LineSegment(App.Vector(-29.9, 50.6, 0), App.Vector(-28.9, 50.6, 0)),  # 6
    Part.LineSegment(App.Vector(-28.9, 50.6, 0), App.Vector(-28.9, 51.1, 0)),  # 7
    Part.ArcOfCircle(Part.Circle(App.Vector(-29.4, 49.6, 0), App.Vector(0, 0, 1), 1.5), math.radians(0), math.radians(71)),  # 8
    Part.ArcOfCircle(Part.Circle(App.Vector(-29.4, 49.6, 0), App.Vector(0, 0, 1), 1.5), math.radians(-71), math.radians(0)),  # 9
    Part.LineSegment(App.Vector(-28.9, 48.2, 0), App.Vector(-28.9, 48.7, 0)),  # 10
    Part.LineSegment(App.Vector(-28.9, 48.7, 0), App.Vector(-29.9, 48.7, 0)),  # 11
    Part.LineSegment(App.Vector(-29.9, 48.7, 0), App.Vector(-29.9, 48.2, 0)),  # 12
], False)
sketch10.addConstraint([
    Sketcher.Constraint("Tangent", 0, 2, 1, 1),
    Sketcher.Constraint("Tangent", 1, 2, 2, 1),
    Sketcher.Constraint("Tangent", 2, 2, 0, 1),
    Sketcher.Constraint("Tangent", 3, 1, 4, 2),
    Sketcher.Constraint("Coincident", 4, 1, 5, 1),
    Sketcher.Constraint("Coincident", 5, 2, 6, 1),
    Sketcher.Constraint("Coincident", 6, 2, 7, 1),
    Sketcher.Constraint("Coincident", 7, 2, 8, 2),
    Sketcher.Constraint("Tangent", 8, 1, 9, 2),
    Sketcher.Constraint("Coincident", 9, 1, 10, 1),
    Sketcher.Constraint("Coincident", 10, 2, 11, 1),
    Sketcher.Constraint("Coincident", 11, 2, 12, 1),
    Sketcher.Constraint("Coincident", 12, 2, 3, 2),
    Sketcher.Constraint("Vertical", 5),
    Sketcher.Constraint("Horizontal", 6),
    Sketcher.Constraint("Vertical", 7),
    Sketcher.Constraint("Vertical", 10),
    Sketcher.Constraint("Horizontal", 11),
    Sketcher.Constraint("Vertical", 12),
    Sketcher.Constraint("Coincident", 3, 3, 0, 3),
    Sketcher.Constraint("Coincident", 8, 3, 0, 3),
    Sketcher.Constraint("Equal", 3, 4),
    Sketcher.Constraint("Equal", 4, 8),
    Sketcher.Constraint("Equal", 8, 9),
    Sketcher.Constraint("Horizontal", 9, 3, 2, 2),
    Sketcher.Constraint("Horizontal", 2, 2, 3, 1),
    Sketcher.Constraint("Horizontal", 4, 1, 7, 2),
    Sketcher.Constraint("Horizontal", 3, 1, 8, 1),
    Sketcher.Constraint("Horizontal", 9, 1, 12, 2),
    Sketcher.Constraint("Vertical", 9, 3, 0, 2),
    Sketcher.Constraint("Vertical", 0, 2, 1, 2),
    Sketcher.Constraint("Vertical", 7, 2, 9, 1),
    Sketcher.Constraint("Equal", 7, 10),
    Sketcher.Constraint("Radius", 0, 10.0),
    Sketcher.Constraint("Radius", 3, 1.5),
    Sketcher.Constraint("DistanceX", 6, 1, 6, 2, 1.0),
    Sketcher.Constraint("DistanceY", 5, 2, 5, 1, 0.5),
    Sketcher.Constraint("DistanceX", 0, 3, -1, 1, 29.431301),
    Sketcher.Constraint("DistanceY", -1, 1, 9, 1, 48.233101),
])
sketch10.setExpression("Constraints[33]", "Params.sketch10_radius")
sketch10.setExpression("Constraints[34]", "Params.sketch10_radius2")
sketch10.setExpression("Constraints[35]", "Params.sketch10_width")
sketch10.setExpression("Constraints[36]", "Params.sketch10_height")
pad9 = doc.addObject("PartDesign::Pad", "Pad008")
body7.addObject(pad9)
pad9.Profile = sketch10
pad9.setExpression("Length", "Params.pad9_length")

# Sketch on XY plane
sketch11 = doc.addObject("Sketcher::SketchObject", "Sketch010")
body7.addObject(sketch11)
sketch11.AttachmentSupport = (doc.getObject("XY_Plane006"), [""])
sketch11.MapMode = "FlatFace"
sketch11.AttachmentOffset = App.Placement(App.Vector(0, 0, -10), App.Rotation())
sketch11.addGeometry([
    Part.ArcOfCircle(Part.Circle(App.Vector(-29.4, 41.1, 0), App.Vector(0, 0, 1), 1.5), math.radians(0), math.radians(180)),
    Part.ArcOfCircle(Part.Circle(App.Vector(-29.4, 41.1, 0), App.Vector(0, 0, 1), 1.5), math.radians(180), math.radians(270)),
    Part.ArcOfCircle(Part.Circle(App.Vector(-29.4, 41.1, 0), App.Vector(0, 0, 1), 1.5), math.radians(-90), math.radians(0)),
], False)
sketch11.addConstraint([
    Sketcher.Constraint("Tangent", 0, 2, 1, 1),
    Sketcher.Constraint("Tangent", 1, 2, 2, 1),
    Sketcher.Constraint("Tangent", 2, 2, 0, 1),
    Sketcher.Constraint("Horizontal", 2, 3, 0, 2),
    Sketcher.Constraint("Horizontal", 0, 2, 2, 2),
    Sketcher.Constraint("Vertical", 2, 3, 1, 2),
    Sketcher.Constraint("Radius", 0, 1.5),
    Sketcher.Constraint("DistanceX", 0, 3, -1, 1, 29.431301),
    Sketcher.Constraint("DistanceY", -1, 1, 0, 3, 41.147315),
])
sketch11.setExpression("Constraints[6]", "Params.sketch11_radius")
pad10 = doc.addObject("PartDesign::Pad", "Pad009")
body7.addObject(pad10)
pad10.Profile = sketch11
pad10.setExpression("Length", "Params.pad10_length")

doc.recompute()
